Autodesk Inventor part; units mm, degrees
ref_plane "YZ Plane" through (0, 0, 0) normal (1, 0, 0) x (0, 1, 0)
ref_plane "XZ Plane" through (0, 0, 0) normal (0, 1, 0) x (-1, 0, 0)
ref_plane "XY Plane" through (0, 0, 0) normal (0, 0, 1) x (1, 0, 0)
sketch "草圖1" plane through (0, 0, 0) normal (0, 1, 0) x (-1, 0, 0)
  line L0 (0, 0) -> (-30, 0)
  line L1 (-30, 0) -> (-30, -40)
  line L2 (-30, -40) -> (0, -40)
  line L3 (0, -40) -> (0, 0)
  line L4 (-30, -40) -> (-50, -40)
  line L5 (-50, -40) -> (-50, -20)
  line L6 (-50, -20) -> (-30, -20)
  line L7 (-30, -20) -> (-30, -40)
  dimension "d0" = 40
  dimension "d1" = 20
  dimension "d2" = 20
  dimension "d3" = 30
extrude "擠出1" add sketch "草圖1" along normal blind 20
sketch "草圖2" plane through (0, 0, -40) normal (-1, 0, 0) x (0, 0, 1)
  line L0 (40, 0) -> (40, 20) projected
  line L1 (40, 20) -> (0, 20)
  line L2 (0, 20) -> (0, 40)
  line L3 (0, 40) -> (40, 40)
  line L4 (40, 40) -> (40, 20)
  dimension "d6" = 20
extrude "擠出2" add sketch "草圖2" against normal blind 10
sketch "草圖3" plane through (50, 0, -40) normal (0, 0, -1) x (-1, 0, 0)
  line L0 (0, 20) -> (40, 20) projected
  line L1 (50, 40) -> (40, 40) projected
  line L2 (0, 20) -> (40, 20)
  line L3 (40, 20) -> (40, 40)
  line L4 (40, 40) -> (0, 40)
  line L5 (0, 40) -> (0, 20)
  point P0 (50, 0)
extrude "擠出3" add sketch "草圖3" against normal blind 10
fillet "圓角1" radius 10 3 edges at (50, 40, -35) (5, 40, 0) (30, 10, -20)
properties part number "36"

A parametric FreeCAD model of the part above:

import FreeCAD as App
import Part
import Sketcher
from FreeCAD import Vector
Q = App.Units.Quantity


def edges_at(feature, points):
    """Names of the edges that pass closest to the given points."""
    edges = feature.Shape.Edges
    near = lambda p: min(range(len(edges)), key=lambda i: edges[i].distToShape(Part.Vertex(*p))[0])
    return sorted({f"Edge{near(p) + 1}" for p in points})


def add_polygon(sketch, points):
    """Adds a closed chain of lines whose ends are joined by coincident constraints."""
    first, n = sketch.GeometryCount, len(points)
    for a, b in zip(points, points[1:] + points[:1]):
        sketch.addGeometry(Part.LineSegment(App.Vector(*a, 0), App.Vector(*b, 0)), False)
    for i in range(n):
        sketch.addConstraint(Sketcher.Constraint("Coincident", first + i, 2, first + (i + 1) % n, 1))

doc = App.newDocument("Part")
body = doc.addObject("PartDesign::Body", "Body")

# Sketch on XZ plane
sketch1 = body.newObject("Sketcher::SketchObject", "Sketch")
sketch1.AttachmentSupport = (doc.getObject("XZ_Plane"), [""])
sketch1.MapMode = "FlatFace"
add_polygon(sketch1, [(0, -40), (0, 0), (30, 0), (30, -20), (50, -20), (50, -40)])  # lines 0-5
sketch1.addConstraint(Sketcher.Constraint("Vertical", 0))
sketch1.addConstraint(Sketcher.Constraint("Horizontal", 1))
sketch1.addConstraint(Sketcher.Constraint("Vertical", 2))
sketch1.addConstraint(Sketcher.Constraint("Horizontal", 3))
sketch1.addConstraint(Sketcher.Constraint("Vertical", 4))
sketch1.addConstraint(Sketcher.Constraint("Horizontal", 5))
sketch1.addConstraint(Sketcher.Constraint("Coincident", 0, 2, -1, 1))
sketch1.addConstraint(Sketcher.Constraint("Equal", 3, 2))
sketch1.addConstraint(Sketcher.Constraint("Equal", 2, 4))
sketch1.addConstraint(Sketcher.Constraint("DistanceX", 1, 1, 1, 2, Q("30 mm")))
sketch1.addConstraint(Sketcher.Constraint("DistanceX", 3, 1, 3, 2, Q("20 mm")))
pad1 = body.newObject("PartDesign::Pad", "Pad")
pad1.Profile = sketch1
pad1.Length = 20
pad1.Reversed = True

# Sketch on YZ plane
sketch2 = body.newObject("Sketcher::SketchObject", "Sketch001")
sketch2.AttachmentSupport = (doc.getObject("YZ_Plane"), [""])
sketch2.MapMode = "FlatFace"
add_polygon(sketch2, [(20, -40), (20, 0), (40, 0), (40, -40)])  # lines 0-3
sketch2.addConstraint(Sketcher.Constraint("Vertical", 0))
sketch2.addConstraint(Sketcher.Constraint("Horizontal", 1))
sketch2.addConstraint(Sketcher.Constraint("Vertical", 2))
sketch2.addConstraint(Sketcher.Constraint("Horizontal", 3))
sketch2.addConstraint(Sketcher.Constraint("PointOnObject", 0, 2, -1))
sketch2.addConstraint(Sketcher.Constraint("DistanceX", 1, 1, 1, 2, Q("20 mm")))
sketch2.addConstraint(Sketcher.Constraint("DistanceX", -1, 1, 0, 2, Q("20 mm")))
sketch2.addConstraint(Sketcher.Constraint("DistanceY", 0, 1, 0, 2, Q("40 mm")))
pad2 = body.newObject("PartDesign::Pad", "Pad001")
pad2.Profile = sketch2
pad2.Length = 10

# Sketch on XY plane
sketch3 = body.newObject("Sketcher::SketchObject", "Sketch002")
sketch3.AttachmentSupport = (doc.getObject("XY_Plane"), [""])
sketch3.MapMode = "FlatFace"
sketch3.AttachmentOffset = App.Placement(Vector(0, 0, -40), App.Rotation())
add_polygon(sketch3, [(50, 40), (50, 20), (10, 20), (10, 40)])  # lines 0-3
sketch3.addConstraint(Sketcher.Constraint("Vertical", 0))
sketch3.addConstraint(Sketcher.Constraint("Horizontal", 1))
sketch3.addConstraint(Sketcher.Constraint("Vertical", 2))
sketch3.addConstraint(Sketcher.Constraint("Horizontal", 3))
sketch3.addConstraint(Sketcher.Constraint("DistanceX", 1, 2, 1, 1, Q("40 mm")))
sketch3.addConstraint(Sketcher.Constraint("DistanceY", 0, 2, 0, 1, Q("20 mm")))
sketch3.addConstraint(Sketcher.Constraint("DistanceX", -1, 1, 0, 2, Q("50 mm")))
sketch3.addConstraint(Sketcher.Constraint("DistanceY", -1, 1, 0, 2, Q("20 mm")))
pad3 = body.newObject("PartDesign::Pad", "Pad002")
pad3.Profile = sketch3
pad3.Length = 10
doc.recompute()

fillet = body.newObject("PartDesign::Fillet", "Fillet")
fillet.Base = (pad3, edges_at(pad3, [(50, 40, -35), (5, 40, 0), (30, 10, -20)]))
fillet.Radius = 10

doc.recompute()
